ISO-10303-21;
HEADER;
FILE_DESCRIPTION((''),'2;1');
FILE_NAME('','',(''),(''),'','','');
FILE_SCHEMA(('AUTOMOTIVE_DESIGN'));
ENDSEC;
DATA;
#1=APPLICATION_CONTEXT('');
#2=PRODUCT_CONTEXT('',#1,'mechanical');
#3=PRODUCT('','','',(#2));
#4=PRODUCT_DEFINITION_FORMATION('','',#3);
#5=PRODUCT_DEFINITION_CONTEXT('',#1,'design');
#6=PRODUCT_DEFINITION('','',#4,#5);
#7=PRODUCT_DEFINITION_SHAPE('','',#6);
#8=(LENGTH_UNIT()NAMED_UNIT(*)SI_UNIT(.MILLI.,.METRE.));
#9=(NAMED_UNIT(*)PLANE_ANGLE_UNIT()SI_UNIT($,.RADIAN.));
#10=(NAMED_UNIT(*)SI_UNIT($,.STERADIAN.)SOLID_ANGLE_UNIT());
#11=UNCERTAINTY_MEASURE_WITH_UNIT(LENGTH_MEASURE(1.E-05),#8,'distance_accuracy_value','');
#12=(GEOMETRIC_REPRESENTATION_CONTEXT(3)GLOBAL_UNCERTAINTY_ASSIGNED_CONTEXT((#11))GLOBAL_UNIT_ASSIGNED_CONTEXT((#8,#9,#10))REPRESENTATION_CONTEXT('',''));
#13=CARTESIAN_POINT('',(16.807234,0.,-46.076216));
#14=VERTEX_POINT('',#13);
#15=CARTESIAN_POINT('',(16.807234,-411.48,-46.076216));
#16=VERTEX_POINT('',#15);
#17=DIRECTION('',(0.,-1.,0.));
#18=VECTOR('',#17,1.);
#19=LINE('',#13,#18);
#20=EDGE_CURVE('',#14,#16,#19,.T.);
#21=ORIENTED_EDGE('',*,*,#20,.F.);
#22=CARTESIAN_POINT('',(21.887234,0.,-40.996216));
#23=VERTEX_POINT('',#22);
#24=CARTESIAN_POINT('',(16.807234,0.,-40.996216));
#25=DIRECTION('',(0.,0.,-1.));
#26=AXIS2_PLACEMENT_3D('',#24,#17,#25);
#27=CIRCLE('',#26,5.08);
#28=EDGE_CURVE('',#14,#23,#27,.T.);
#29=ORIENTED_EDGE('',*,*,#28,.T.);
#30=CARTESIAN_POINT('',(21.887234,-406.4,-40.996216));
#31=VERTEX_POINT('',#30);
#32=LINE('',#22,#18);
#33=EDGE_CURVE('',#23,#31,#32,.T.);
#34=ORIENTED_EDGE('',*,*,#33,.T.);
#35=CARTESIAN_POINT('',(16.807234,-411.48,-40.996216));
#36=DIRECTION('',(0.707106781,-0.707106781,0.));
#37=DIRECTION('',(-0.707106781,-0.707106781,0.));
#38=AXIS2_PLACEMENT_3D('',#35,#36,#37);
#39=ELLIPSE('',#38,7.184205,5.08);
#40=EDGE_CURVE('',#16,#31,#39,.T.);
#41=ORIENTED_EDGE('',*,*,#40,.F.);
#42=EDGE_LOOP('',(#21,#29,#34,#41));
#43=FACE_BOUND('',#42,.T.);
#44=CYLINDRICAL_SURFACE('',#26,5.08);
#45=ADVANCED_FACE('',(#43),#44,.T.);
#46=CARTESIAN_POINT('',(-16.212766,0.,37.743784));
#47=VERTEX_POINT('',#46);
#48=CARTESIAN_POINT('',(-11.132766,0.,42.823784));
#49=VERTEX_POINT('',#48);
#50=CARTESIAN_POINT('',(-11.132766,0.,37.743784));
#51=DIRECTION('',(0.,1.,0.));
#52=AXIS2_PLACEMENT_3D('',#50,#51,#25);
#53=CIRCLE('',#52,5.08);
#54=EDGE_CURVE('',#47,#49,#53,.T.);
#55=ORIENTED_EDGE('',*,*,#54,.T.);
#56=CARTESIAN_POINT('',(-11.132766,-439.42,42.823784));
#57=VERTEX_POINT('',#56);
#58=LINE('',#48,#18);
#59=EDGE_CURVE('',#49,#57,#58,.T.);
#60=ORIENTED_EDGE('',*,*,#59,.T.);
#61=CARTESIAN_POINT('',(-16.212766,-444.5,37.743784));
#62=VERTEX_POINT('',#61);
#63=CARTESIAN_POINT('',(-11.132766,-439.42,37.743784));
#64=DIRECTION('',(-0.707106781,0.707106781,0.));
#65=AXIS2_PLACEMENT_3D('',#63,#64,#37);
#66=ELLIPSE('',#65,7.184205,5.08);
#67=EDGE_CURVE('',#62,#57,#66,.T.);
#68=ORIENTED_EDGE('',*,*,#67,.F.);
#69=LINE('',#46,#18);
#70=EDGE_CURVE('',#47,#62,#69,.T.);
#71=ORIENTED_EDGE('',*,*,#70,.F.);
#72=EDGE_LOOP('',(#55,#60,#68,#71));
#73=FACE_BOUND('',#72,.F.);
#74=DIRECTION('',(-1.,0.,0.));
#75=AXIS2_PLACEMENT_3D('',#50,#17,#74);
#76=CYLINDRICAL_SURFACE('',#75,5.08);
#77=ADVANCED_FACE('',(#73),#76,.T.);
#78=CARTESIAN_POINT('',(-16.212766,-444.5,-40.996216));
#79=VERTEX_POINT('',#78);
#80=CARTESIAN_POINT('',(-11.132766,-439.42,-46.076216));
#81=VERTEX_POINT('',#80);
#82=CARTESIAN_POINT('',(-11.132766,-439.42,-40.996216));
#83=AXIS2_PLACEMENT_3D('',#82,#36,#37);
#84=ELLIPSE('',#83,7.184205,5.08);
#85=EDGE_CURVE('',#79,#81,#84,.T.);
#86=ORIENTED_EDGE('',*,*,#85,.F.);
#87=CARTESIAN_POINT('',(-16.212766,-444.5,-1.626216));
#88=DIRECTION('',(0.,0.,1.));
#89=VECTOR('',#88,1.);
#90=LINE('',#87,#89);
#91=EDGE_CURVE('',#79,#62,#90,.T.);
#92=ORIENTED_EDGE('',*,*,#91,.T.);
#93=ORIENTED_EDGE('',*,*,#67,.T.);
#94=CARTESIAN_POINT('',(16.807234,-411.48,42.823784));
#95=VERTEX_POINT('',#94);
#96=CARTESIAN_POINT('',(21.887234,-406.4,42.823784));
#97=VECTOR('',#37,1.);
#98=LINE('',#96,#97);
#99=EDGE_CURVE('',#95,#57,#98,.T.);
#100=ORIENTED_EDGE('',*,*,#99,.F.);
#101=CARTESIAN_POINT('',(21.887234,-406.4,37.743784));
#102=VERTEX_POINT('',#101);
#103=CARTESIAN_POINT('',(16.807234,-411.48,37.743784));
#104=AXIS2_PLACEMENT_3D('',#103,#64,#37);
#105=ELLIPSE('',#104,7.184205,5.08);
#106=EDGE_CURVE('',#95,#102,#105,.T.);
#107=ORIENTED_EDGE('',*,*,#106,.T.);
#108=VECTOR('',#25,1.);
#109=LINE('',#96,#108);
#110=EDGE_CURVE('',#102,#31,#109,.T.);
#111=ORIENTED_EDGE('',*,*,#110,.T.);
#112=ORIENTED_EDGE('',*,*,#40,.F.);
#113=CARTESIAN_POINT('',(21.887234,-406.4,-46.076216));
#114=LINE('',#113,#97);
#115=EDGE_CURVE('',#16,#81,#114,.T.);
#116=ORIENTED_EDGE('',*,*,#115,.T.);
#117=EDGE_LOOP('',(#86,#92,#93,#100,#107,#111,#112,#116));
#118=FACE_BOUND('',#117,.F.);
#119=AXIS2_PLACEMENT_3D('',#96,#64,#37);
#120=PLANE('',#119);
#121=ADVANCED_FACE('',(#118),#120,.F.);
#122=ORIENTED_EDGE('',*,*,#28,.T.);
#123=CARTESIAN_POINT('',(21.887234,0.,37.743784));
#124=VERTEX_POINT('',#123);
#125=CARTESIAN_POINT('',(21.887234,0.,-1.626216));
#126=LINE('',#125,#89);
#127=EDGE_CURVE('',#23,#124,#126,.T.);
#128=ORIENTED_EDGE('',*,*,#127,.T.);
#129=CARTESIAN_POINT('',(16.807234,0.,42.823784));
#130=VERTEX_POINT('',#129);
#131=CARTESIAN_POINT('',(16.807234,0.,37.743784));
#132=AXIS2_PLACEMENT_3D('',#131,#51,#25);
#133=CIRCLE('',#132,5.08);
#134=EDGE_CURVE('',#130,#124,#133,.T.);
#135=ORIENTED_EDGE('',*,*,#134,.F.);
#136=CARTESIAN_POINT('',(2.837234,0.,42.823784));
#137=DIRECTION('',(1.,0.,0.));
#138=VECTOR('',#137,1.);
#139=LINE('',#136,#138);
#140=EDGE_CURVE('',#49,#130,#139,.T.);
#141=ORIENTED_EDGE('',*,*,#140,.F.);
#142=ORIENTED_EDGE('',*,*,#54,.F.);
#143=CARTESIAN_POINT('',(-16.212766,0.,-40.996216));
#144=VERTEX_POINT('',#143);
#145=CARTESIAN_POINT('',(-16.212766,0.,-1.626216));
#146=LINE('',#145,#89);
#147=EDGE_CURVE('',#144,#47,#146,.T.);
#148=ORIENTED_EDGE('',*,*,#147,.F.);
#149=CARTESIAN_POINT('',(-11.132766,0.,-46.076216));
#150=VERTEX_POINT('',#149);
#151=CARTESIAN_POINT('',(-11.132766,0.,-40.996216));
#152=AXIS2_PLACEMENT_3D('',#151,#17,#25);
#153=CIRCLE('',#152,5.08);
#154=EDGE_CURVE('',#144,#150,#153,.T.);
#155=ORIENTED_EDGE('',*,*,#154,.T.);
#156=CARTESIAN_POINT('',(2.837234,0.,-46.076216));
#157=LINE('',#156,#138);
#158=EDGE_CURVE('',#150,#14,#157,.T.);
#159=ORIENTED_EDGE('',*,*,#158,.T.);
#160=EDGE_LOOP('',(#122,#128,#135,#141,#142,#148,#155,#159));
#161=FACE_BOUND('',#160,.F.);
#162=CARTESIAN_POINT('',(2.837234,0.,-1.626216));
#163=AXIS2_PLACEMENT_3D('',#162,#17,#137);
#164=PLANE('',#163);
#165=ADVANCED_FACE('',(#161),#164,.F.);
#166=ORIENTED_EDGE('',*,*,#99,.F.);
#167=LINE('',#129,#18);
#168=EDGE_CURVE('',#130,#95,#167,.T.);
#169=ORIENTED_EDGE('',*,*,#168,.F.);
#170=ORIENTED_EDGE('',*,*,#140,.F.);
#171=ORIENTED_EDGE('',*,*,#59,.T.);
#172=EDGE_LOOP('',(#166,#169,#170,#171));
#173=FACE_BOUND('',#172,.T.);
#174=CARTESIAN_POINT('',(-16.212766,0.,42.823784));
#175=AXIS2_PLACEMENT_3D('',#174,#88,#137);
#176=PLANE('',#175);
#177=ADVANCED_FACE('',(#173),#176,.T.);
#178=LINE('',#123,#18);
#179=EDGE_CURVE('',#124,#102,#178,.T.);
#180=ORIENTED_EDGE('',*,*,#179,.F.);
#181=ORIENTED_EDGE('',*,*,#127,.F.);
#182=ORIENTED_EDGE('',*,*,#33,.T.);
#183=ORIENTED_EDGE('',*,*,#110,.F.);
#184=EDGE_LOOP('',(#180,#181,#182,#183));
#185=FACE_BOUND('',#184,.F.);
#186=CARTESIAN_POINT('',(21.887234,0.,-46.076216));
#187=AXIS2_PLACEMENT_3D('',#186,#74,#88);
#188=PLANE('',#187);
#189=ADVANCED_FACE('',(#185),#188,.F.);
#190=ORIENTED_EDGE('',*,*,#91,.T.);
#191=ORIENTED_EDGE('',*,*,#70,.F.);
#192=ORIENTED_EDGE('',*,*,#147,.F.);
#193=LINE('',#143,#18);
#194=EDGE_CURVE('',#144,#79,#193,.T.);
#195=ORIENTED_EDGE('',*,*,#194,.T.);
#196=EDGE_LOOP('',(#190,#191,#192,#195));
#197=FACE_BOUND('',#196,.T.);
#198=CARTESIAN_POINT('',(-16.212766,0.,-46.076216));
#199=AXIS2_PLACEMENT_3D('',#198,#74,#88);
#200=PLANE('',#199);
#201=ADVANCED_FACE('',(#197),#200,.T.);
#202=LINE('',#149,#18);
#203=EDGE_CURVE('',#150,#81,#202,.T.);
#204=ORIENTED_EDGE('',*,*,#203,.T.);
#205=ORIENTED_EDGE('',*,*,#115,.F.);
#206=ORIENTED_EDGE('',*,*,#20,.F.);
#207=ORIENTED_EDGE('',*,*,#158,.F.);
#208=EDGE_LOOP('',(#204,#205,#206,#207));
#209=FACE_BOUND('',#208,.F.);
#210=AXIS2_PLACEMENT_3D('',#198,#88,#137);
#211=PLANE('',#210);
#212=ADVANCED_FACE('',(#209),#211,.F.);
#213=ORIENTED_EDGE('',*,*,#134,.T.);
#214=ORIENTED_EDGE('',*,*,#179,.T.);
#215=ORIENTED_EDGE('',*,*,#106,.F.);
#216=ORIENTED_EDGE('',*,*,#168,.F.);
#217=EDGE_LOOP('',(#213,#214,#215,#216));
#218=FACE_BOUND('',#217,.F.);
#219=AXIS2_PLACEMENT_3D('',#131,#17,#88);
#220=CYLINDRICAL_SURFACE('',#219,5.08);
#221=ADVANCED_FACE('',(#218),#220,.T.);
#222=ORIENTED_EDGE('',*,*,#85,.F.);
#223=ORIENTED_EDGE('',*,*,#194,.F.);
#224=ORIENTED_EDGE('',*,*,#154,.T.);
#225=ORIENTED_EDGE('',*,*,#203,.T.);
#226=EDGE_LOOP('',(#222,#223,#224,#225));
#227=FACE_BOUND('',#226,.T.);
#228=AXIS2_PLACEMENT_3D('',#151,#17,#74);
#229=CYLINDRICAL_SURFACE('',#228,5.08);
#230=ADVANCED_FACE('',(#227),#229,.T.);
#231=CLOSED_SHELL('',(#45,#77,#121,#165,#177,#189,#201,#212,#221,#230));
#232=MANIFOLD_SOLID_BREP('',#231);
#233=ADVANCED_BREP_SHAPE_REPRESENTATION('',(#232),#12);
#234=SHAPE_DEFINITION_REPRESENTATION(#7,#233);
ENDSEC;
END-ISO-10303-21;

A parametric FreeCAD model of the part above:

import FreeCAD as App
import Part
import Sketcher
Q = App.Units.Quantity


def edges_at(feature, points):
    """Names of the edges that pass closest to the given points."""
    edges = feature.Shape.Edges
    near = lambda p: min(range(len(edges)), key=lambda i: edges[i].distToShape(Part.Vertex(*p))[0])
    return sorted({f"Edge{near(p) + 1}" for p in points})

doc = App.newDocument("Part")
body = doc.addObject("PartDesign::Body", "Body")

# Sketch on XZ plane
sketch1 = body.newObject("Sketcher::SketchObject", "Sketch")
sketch1.AttachmentSupport = (doc.getObject("XZ_Plane"), [""])
sketch1.MapMode = "FlatFace"
sketch1.addGeometry([
    Part.LineSegment(App.Vector(-16.212766, 42.823784, 0), App.Vector(-16.212766, -46.076216, 0)),
    Part.LineSegment(App.Vector(-16.212766, -46.076216, 0), App.Vector(21.887234, -46.076216, 0)),
    Part.LineSegment(App.Vector(21.887234, -46.076216, 0), App.Vector(21.887234, 42.823784, 0)),
    Part.LineSegment(App.Vector(21.887234, 42.823784, 0), App.Vector(-16.212766, 42.823784, 0)),
], False)
sketch1.addConstraint([
    Sketcher.Constraint("Coincident", 0, 2, 1, 1),
    Sketcher.Constraint("Coincident", 1, 2, 2, 1),
    Sketcher.Constraint("Coincident", 2, 2, 3, 1),
    Sketcher.Constraint("Coincident", 3, 2, 0, 1),
    Sketcher.Constraint("Vertical", 0),
    Sketcher.Constraint("Horizontal", 1),
    Sketcher.Constraint("Vertical", 2),
    Sketcher.Constraint("Horizontal", 3),
    Sketcher.Constraint("DistanceX", 1, 1, 1, 2, Q("1.5 in")),
    Sketcher.Constraint("DistanceY", 0, 2, 0, 1, Q("3.5 in")),
    Sketcher.Constraint("DistanceX", 0, 2, -1, 1, 16.212766),
    Sketcher.Constraint("DistanceY", 0, 2, -1, 1, 46.076216),
])
pad1 = body.newObject("PartDesign::Pad", "Pad")
pad1.Profile = sketch1
pad1.Length = Q("17.5 in")

# Sketch on XY plane
sketch2 = body.newObject("Sketcher::SketchObject", "Sketch001")
sketch2.AttachmentSupport = (doc.getObject("XY_Plane"), [""])
sketch2.MapMode = "FlatFace"
sketch2.AttachmentOffset = App.Placement(App.Vector(0, 0, 42.823784), App.Rotation())
sketch2.addGeometry([
    Part.LineSegment(App.Vector(21.887234, -406.4, 0), App.Vector(-16.212766, -444.5, 0)),
    Part.LineSegment(App.Vector(-16.212766, -444.5, 0), App.Vector(21.887234, -444.5, 0)),
    Part.LineSegment(App.Vector(21.887234, -444.5, 0), App.Vector(21.887234, -406.4, 0)),
], False)
sketch2.addConstraint([
    Sketcher.Constraint("Coincident", 0, 2, 1, 1),
    Sketcher.Constraint("Coincident", 1, 2, 2, 1),
    Sketcher.Constraint("Coincident", 2, 2, 0, 1),
    Sketcher.Constraint("Horizontal", 1),
    Sketcher.Constraint("Vertical", 2),
    Sketcher.Constraint("Equal", 1, 2),
    Sketcher.Constraint("DistanceX", 1, 1, 1, 2, Q("1.5 in")),
    Sketcher.Constraint("DistanceY", 2, 2, -1, 1, Q("16 in")),
    Sketcher.Constraint("DistanceX", 0, 2, -1, 1, 16.212766),
])
pocket1 = body.newObject("PartDesign::Pocket", "Pocket")
pocket1.Profile = sketch2
pocket1.Length = Q("3.5 in")
doc.recompute()

fillet = body.newObject("PartDesign::Fillet", "Fillet")
fillet.Base = (pocket1, edges_at(pocket1, [
    (21.887, -203.2, 42.824),
    (21.887, -203.2, -46.076),
    (-16.213, -222.25, 42.824),
    (-16.213, -222.25, -46.076),
]))
fillet.Radius = Q("0.2 in")

doc.recompute()
